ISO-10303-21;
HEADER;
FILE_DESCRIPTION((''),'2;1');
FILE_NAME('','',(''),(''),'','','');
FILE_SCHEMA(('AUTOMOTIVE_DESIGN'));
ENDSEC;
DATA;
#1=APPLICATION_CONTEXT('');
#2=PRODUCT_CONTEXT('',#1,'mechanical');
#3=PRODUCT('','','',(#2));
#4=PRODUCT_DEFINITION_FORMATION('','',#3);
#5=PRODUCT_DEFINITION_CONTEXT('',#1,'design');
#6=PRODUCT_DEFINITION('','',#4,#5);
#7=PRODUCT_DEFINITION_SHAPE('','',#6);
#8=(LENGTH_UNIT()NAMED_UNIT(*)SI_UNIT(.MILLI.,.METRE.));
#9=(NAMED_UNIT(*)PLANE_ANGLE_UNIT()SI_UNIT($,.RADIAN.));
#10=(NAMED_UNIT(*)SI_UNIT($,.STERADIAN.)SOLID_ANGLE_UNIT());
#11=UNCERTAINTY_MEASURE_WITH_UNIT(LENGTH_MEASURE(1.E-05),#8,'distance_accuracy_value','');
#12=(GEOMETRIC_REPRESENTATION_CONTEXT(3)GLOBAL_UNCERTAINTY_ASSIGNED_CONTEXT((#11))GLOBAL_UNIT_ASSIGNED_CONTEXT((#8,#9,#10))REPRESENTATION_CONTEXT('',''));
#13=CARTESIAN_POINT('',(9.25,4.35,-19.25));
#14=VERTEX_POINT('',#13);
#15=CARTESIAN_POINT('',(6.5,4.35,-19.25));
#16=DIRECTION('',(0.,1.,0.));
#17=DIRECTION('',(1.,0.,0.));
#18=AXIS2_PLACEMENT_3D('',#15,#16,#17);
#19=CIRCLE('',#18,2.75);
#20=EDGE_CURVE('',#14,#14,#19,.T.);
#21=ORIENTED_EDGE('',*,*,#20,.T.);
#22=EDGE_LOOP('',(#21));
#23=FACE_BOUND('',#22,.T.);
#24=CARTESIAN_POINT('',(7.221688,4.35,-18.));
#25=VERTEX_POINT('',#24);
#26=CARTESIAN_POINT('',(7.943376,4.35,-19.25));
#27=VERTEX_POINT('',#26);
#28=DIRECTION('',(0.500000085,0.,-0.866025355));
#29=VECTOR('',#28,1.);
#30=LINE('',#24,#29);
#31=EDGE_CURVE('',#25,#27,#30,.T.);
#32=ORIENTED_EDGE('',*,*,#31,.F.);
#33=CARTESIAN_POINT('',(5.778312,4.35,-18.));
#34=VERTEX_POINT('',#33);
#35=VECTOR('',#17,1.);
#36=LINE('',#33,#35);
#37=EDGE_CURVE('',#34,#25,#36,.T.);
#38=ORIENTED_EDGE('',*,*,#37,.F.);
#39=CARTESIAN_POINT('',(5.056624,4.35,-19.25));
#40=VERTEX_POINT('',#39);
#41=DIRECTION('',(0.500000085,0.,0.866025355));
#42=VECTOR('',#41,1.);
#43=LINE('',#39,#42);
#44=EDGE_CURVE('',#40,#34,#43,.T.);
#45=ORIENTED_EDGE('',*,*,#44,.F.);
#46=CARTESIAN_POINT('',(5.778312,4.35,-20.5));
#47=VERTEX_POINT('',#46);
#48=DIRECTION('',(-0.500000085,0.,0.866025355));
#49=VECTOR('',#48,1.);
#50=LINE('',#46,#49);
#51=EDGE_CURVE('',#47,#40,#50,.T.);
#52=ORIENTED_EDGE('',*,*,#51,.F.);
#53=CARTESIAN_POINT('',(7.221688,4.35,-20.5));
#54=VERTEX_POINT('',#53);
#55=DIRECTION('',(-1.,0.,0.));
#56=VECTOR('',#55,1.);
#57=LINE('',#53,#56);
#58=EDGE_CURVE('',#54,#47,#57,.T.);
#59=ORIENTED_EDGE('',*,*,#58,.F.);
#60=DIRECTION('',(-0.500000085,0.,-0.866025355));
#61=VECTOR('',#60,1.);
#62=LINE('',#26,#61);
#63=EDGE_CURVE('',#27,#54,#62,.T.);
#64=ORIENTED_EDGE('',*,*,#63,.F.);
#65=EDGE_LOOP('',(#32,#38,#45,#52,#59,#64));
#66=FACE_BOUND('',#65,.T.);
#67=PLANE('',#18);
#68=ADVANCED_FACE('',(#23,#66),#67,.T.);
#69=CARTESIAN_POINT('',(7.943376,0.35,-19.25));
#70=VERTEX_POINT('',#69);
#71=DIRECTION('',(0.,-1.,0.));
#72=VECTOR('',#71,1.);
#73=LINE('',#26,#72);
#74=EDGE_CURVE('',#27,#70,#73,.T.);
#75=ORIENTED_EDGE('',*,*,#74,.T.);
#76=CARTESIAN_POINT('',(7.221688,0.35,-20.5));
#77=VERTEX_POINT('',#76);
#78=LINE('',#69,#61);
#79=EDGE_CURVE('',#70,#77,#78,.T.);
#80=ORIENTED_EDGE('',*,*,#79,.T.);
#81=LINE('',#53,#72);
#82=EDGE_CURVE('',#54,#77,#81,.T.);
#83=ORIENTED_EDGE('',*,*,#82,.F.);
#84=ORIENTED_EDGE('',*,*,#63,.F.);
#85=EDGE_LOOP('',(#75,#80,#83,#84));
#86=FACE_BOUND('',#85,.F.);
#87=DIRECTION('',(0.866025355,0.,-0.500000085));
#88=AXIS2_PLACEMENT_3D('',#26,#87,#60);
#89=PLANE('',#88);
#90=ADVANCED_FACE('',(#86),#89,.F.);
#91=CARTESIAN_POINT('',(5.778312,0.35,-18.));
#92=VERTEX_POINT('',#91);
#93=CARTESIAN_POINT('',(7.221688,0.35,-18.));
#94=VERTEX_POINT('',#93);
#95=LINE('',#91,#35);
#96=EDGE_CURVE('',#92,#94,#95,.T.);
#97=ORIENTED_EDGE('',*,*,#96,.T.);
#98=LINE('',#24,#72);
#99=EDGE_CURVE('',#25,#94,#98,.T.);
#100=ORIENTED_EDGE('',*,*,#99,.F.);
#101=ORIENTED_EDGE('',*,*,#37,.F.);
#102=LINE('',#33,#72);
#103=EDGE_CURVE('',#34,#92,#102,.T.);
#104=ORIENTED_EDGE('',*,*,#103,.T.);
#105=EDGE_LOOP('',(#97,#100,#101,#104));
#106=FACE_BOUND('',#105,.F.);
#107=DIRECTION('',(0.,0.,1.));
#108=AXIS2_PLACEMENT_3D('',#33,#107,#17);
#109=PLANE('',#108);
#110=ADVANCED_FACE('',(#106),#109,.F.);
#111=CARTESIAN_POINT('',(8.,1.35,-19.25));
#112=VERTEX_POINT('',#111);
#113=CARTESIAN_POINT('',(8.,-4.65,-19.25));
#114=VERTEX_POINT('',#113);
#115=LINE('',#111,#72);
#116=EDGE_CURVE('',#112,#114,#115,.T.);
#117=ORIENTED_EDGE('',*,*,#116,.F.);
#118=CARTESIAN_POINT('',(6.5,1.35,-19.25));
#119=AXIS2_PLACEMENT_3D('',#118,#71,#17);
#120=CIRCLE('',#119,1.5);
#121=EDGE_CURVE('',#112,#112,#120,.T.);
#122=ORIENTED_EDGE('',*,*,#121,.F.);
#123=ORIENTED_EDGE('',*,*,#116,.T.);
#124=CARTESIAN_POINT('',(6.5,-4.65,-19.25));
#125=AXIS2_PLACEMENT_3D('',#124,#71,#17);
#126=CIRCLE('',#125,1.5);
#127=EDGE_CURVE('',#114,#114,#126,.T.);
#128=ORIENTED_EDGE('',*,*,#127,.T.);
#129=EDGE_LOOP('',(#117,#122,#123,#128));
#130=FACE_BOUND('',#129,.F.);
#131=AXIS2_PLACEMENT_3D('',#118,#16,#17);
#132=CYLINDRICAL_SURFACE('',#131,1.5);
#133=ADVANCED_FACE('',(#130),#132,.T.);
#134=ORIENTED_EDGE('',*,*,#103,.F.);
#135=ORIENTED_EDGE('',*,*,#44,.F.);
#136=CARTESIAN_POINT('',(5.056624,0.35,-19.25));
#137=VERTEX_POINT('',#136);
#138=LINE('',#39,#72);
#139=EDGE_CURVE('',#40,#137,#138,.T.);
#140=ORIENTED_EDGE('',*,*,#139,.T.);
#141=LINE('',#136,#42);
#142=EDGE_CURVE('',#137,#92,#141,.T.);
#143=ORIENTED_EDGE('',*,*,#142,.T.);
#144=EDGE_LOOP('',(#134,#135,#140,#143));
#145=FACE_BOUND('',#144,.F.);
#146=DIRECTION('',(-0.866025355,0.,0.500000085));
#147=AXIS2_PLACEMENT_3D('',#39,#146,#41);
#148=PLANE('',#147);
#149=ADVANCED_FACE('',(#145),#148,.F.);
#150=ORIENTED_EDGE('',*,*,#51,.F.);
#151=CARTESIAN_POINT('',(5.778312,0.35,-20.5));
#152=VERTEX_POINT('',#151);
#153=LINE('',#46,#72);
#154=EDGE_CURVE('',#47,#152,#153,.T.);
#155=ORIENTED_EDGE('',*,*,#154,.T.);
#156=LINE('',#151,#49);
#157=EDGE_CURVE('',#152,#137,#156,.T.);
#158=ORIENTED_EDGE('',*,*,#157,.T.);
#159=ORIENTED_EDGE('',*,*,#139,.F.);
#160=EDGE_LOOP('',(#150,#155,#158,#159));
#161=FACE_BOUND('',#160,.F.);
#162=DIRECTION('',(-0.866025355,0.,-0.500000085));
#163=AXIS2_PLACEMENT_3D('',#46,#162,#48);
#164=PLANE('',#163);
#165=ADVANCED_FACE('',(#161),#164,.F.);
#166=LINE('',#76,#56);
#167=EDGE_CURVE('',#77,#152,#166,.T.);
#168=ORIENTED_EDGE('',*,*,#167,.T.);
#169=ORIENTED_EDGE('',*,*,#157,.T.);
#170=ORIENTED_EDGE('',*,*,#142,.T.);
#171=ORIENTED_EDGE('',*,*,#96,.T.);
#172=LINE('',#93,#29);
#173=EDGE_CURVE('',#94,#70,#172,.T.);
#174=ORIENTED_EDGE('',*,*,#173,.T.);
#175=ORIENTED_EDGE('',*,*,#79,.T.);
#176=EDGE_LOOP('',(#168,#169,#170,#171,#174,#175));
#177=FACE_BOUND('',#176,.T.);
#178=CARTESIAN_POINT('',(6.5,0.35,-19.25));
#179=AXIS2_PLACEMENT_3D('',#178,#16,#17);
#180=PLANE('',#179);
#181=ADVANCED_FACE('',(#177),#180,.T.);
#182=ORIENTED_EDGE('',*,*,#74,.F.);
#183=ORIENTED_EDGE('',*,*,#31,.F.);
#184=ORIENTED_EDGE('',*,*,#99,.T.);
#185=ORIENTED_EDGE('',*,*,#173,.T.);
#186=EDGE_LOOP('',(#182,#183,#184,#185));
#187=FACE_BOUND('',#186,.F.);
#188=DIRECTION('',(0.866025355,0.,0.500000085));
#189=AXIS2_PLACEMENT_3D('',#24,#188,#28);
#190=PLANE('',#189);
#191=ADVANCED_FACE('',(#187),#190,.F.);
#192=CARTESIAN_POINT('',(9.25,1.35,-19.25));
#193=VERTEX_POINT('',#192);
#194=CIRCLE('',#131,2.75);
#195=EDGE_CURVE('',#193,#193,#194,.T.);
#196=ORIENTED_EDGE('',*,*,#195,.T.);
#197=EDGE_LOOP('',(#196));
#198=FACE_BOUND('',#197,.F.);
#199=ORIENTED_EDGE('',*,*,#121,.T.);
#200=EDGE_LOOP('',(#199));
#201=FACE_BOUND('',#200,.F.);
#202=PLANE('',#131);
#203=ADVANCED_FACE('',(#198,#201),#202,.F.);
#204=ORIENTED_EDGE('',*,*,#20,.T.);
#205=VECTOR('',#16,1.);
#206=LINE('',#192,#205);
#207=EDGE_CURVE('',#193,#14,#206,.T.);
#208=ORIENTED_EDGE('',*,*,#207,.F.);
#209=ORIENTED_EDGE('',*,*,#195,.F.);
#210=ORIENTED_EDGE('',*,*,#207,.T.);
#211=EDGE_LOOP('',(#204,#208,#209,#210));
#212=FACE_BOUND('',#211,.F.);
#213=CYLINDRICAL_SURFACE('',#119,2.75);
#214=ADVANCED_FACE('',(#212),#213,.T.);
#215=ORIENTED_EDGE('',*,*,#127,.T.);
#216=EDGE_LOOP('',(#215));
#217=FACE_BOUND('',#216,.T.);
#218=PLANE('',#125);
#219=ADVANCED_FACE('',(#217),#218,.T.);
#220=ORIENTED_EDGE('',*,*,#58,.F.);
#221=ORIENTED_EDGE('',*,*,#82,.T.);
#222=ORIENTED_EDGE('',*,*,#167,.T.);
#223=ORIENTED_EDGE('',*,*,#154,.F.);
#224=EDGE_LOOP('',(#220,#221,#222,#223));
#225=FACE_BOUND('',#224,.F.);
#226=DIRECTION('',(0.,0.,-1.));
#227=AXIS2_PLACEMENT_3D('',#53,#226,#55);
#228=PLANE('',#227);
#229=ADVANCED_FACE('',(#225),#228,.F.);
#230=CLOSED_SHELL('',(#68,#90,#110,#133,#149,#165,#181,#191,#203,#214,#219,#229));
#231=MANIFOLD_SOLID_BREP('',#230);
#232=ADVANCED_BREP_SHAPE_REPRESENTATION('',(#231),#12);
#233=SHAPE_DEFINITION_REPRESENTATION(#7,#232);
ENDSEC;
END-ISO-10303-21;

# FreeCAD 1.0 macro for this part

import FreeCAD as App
import Part
import Sketcher
from FreeCAD import Vector
Q = App.Units.Quantity

doc = App.newDocument("Part")
body = doc.addObject("PartDesign::Body", "Body")

sketch1 = body.newObject("Sketcher::SketchObject", "Sketch")
sketch1.AttachmentSupport = (doc.getObject("XY_Plane"), [""])
sketch1.MapMode = "FlatFace"
sketch1.addGeometry(Part.Circle(Vector(0, 0, 0), Vector(0, 0, 1), 2.8), False)
sketch1.addConstraint(Sketcher.Constraint("Coincident", 0, 3, -1, 1))
sketch1.addConstraint(Sketcher.Constraint("Diameter", 0, 5.5))
pad1 = body.newObject("PartDesign::Pad", "Pad")
pad1.Profile = sketch1
pad1.Length = 3

sketch2 = body.newObject("Sketcher::SketchObject", "Sketch001")
sketch2.AttachmentSupport = (doc.getObject("XY_Plane"), [""])
sketch2.MapMode = "FlatFace"
sketch2.addGeometry(Part.Circle(Vector(0, 0, 0), Vector(0, 0, 1), 1.5), False)
sketch2.addConstraint(Sketcher.Constraint("Coincident", 0, 3, -1, 1))
sketch2.addConstraint(Sketcher.Constraint("Diameter", 0, 3.0))
pad2 = body.newObject("PartDesign::Pad", "Pad001")
pad2.Profile = sketch2
pad2.Length = 6
pad2.Reversed = True

sketch3 = body.newObject("Sketcher::SketchObject", "Sketch002")
sketch3.AttachmentSupport = (doc.getObject("XY_Plane"), [""])
sketch3.MapMode = "FlatFace"
sketch3.AttachmentOffset = App.Placement(Vector(0, 0, 3), App.Rotation())
sketch3.addGeometry(Part.LineSegment(Vector(0.7, -1.2, 0), Vector(1.4, 0, 0)), False)
sketch3.addGeometry(Part.LineSegment(Vector(1.4, 0, 0), Vector(0.7, 1.2, 0)), False)
sketch3.addGeometry(Part.LineSegment(Vector(0.7, 1.2, 0), Vector(-0.7, 1.2, 0)), False)
sketch3.addGeometry(Part.LineSegment(Vector(-0.7, 1.2, 0), Vector(-1.4, 0, 0)), False)
sketch3.addGeometry(Part.LineSegment(Vector(-1.4, 0, 0), Vector(-0.7, -1.2, 0)), False)
sketch3.addGeometry(Part.LineSegment(Vector(-0.7, -1.2, 0), Vector(0.7, -1.2, 0)), False)
sketch3.addConstraint(Sketcher.Constraint("Coincident", 0, 2, 1, 1))
sketch3.addConstraint(Sketcher.Constraint("Coincident", 1, 2, 2, 1))
sketch3.addConstraint(Sketcher.Constraint("Coincident", 2, 2, 3, 1))
sketch3.addConstraint(Sketcher.Constraint("Coincident", 3, 2, 4, 1))
sketch3.addConstraint(Sketcher.Constraint("Coincident", 4, 2, 5, 1))
sketch3.addConstraint(Sketcher.Constraint("Coincident", 5, 2, 0, 1))
sketch3.addConstraint(Sketcher.Constraint("Horizontal", 2))
sketch3.addConstraint(Sketcher.Constraint("Horizontal", 5))
sketch3.addConstraint(Sketcher.Constraint("Symmetric", 0, 2, 3, 2, -1, 1))
sketch3.addConstraint(Sketcher.Constraint("Symmetric", 1, 2, 4, 2, -1, 1))
sketch3.addConstraint(Sketcher.Constraint("PointOnObject", 0, 2, -1))
sketch3.addConstraint(Sketcher.Constraint("Parallel", 0, 3))
sketch3.addConstraint(Sketcher.Constraint("Vertical", 2, 2, 4, 2))
sketch3.addConstraint(Sketcher.Constraint("Angle", 0, Q("59.999994 deg")))
sketch3.addConstraint(Sketcher.Constraint("DistanceY", 4, 2, 2, 2, 2.5))
sketch3.addConstraint(Sketcher.Constraint("DistanceX", 2, 2, 2, 1, 1.443376))
pocket1 = body.newObject("PartDesign::Pocket", "Pocket")
pocket1.Profile = sketch3
pocket1.Length = 4
body2 = doc.addObject("PartDesign::Body", "Body001")
doc.recompute()

body.Placement = App.Placement(Vector(6.5, 1.35, -19.25), App.Rotation(Vector(1, 0, 0), 270))
boolean = body2.newObject("PartDesign::Boolean", "Boolean")
boolean.Type = "Fuse"
boolean.addObjects([body])

doc.recompute()
